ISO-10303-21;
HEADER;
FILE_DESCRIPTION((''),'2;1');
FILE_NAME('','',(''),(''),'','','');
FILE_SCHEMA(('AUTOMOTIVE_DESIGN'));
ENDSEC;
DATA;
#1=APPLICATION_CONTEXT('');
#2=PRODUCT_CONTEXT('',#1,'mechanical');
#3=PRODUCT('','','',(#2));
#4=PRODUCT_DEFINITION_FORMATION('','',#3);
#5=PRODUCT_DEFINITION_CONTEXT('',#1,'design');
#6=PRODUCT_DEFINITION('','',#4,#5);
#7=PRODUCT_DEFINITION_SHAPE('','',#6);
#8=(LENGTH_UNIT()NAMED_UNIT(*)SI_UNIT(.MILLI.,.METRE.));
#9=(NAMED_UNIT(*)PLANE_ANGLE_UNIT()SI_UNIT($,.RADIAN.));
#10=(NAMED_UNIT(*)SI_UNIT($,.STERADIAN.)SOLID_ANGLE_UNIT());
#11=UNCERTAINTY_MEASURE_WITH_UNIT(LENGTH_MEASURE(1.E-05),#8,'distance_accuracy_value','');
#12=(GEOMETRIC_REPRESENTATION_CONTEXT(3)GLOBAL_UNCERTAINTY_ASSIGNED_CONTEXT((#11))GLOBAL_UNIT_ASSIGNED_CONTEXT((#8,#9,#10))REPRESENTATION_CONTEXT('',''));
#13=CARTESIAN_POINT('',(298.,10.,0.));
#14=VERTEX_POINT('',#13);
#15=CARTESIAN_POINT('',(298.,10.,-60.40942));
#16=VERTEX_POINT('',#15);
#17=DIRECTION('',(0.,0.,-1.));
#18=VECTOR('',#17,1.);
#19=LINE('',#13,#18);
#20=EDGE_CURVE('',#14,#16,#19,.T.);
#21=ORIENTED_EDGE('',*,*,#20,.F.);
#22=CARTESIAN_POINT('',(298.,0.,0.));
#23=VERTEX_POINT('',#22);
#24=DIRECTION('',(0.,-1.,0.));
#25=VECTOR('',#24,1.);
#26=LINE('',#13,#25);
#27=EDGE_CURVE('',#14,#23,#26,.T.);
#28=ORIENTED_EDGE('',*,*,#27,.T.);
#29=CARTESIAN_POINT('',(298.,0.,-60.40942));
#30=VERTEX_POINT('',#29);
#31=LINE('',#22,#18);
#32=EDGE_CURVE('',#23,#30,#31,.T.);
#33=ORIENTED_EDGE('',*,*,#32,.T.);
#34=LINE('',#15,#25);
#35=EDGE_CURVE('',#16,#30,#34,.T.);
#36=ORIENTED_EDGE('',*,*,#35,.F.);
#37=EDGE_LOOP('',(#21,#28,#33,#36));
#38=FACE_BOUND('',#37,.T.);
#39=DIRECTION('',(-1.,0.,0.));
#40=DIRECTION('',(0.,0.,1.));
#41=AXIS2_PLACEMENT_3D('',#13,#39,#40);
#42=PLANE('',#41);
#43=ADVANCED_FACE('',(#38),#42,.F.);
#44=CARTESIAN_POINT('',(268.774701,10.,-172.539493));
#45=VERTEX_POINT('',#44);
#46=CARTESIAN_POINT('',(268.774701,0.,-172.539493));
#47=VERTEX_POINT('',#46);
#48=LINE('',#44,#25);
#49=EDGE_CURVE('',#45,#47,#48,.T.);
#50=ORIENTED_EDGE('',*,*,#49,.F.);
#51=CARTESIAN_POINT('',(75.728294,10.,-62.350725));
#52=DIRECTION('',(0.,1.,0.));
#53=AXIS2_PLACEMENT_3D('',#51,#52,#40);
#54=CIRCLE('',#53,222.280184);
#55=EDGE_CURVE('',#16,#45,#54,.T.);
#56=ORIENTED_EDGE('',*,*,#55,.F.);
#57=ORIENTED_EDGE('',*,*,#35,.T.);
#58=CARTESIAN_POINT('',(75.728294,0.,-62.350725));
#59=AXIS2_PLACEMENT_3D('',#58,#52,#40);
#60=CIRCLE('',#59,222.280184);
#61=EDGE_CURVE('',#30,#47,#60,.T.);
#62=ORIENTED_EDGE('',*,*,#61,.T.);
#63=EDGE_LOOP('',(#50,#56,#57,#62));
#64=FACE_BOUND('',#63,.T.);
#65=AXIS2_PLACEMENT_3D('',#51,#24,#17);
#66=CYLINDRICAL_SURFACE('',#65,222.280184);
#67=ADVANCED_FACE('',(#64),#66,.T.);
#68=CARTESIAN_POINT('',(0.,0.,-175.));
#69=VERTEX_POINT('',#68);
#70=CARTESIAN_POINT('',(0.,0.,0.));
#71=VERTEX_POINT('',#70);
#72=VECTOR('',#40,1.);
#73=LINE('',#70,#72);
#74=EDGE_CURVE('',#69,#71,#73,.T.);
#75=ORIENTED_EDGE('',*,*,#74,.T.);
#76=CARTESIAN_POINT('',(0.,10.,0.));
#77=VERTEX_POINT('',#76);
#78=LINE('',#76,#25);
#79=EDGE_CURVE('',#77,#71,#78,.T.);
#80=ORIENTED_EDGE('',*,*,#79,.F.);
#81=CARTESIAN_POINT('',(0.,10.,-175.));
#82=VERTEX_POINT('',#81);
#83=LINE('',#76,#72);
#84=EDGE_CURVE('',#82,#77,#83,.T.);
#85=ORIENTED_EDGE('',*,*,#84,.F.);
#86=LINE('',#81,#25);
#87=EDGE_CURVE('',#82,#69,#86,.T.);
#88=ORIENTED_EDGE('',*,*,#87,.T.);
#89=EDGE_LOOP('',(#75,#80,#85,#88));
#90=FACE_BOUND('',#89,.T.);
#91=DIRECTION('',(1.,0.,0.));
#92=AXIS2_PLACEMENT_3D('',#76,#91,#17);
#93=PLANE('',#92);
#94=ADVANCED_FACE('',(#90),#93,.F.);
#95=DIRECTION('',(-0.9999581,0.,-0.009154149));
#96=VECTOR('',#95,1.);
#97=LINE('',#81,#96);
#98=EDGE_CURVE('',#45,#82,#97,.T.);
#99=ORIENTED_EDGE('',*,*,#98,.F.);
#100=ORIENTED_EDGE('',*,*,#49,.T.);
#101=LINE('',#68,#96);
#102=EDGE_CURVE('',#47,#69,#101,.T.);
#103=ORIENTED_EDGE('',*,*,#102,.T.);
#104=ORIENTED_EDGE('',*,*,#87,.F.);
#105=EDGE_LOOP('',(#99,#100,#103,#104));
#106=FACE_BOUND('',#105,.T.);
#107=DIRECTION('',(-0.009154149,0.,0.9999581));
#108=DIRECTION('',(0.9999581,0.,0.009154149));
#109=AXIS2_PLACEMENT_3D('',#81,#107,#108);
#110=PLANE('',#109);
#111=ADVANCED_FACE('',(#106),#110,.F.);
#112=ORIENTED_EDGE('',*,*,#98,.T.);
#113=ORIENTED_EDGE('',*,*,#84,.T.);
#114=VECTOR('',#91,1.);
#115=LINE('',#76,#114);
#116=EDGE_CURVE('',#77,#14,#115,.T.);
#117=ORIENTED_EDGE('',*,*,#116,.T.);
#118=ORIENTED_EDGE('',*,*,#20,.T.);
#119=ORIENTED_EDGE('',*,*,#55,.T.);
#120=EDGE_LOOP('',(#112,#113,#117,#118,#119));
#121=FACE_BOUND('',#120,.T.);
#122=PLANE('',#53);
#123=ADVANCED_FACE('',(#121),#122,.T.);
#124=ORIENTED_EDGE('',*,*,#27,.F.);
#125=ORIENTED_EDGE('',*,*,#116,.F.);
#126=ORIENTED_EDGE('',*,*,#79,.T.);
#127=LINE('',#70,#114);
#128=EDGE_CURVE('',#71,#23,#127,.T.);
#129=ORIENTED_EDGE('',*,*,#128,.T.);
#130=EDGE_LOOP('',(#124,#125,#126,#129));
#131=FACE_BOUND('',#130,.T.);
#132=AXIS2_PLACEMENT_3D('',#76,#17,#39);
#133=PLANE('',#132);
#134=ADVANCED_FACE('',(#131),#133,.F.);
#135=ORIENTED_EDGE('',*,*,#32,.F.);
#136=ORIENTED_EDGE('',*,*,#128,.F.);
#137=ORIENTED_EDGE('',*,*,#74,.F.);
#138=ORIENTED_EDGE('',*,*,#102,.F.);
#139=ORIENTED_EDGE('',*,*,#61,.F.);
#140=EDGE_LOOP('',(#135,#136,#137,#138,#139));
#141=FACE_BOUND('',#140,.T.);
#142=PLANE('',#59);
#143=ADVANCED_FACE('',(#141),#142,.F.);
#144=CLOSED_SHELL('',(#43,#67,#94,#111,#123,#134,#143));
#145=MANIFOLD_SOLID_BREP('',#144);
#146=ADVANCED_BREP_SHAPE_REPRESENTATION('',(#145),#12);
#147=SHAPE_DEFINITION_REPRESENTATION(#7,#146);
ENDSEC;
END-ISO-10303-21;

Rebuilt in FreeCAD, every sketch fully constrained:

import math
import FreeCAD as App
import Part
import Sketcher
from FreeCAD import Vector

doc = App.newDocument("Part")
body = doc.addObject("PartDesign::Body", "Body")

sketch1 = body.newObject("Sketcher::SketchObject", "Sketch")
sketch1.AttachmentSupport = (doc.getObject("XZ_Plane"), [""])
sketch1.MapMode = "FlatFace"
sketch1.addGeometry([
    Part.LineSegment(Vector(0, 0, 0), Vector(298, 0, 0)),
    Part.LineSegment(Vector(298, 0, 0), Vector(298, -60, 0)),
    Part.ArcOfCircle(Part.Circle(Vector(76, -62, 0), Vector(0, 0, 1), 222), math.radians(-30), math.radians(1)),
    Part.LineSegment(Vector(269, -173, 0), Vector(0, -175, 0)),
    Part.LineSegment(Vector(0, -175, 0), Vector(0, 0, 0)),
], False)
sketch1.addConstraint([
    Sketcher.Constraint("Coincident", 0, 2, 1, 1),
    Sketcher.Constraint("Coincident", 1, 2, 2, 2),
    Sketcher.Constraint("Coincident", 2, 1, 3, 1),
    Sketcher.Constraint("Coincident", 3, 2, 4, 1),
    Sketcher.Constraint("Coincident", 4, 2, 0, 1),
    Sketcher.Constraint("Horizontal", 0),
    Sketcher.Constraint("Vertical", 1),
    Sketcher.Constraint("Vertical", 4),
    Sketcher.Constraint("Coincident", 4, 2, -1, 1),
    Sketcher.Constraint("DistanceX", 0, 1, 0, 2, 298.0),
    Sketcher.Constraint("DistanceY", 4, 1, 4, 2, 175.0),
    Sketcher.Constraint("Radius", 2, 222.280184),
    Sketcher.Constraint("DistanceY", 1, 2, 1, 1, 60.40942),
    Sketcher.Constraint("DistanceX", -1, 1, 2, 1, 268.774701),
    Sketcher.Constraint("Distance", 3, 268.785963),
])
pad1 = body.newObject("PartDesign::Pad", "Pad")
pad1.Profile = sketch1
pad1.Length = 10
pad1.Reversed = True

doc.recompute()
